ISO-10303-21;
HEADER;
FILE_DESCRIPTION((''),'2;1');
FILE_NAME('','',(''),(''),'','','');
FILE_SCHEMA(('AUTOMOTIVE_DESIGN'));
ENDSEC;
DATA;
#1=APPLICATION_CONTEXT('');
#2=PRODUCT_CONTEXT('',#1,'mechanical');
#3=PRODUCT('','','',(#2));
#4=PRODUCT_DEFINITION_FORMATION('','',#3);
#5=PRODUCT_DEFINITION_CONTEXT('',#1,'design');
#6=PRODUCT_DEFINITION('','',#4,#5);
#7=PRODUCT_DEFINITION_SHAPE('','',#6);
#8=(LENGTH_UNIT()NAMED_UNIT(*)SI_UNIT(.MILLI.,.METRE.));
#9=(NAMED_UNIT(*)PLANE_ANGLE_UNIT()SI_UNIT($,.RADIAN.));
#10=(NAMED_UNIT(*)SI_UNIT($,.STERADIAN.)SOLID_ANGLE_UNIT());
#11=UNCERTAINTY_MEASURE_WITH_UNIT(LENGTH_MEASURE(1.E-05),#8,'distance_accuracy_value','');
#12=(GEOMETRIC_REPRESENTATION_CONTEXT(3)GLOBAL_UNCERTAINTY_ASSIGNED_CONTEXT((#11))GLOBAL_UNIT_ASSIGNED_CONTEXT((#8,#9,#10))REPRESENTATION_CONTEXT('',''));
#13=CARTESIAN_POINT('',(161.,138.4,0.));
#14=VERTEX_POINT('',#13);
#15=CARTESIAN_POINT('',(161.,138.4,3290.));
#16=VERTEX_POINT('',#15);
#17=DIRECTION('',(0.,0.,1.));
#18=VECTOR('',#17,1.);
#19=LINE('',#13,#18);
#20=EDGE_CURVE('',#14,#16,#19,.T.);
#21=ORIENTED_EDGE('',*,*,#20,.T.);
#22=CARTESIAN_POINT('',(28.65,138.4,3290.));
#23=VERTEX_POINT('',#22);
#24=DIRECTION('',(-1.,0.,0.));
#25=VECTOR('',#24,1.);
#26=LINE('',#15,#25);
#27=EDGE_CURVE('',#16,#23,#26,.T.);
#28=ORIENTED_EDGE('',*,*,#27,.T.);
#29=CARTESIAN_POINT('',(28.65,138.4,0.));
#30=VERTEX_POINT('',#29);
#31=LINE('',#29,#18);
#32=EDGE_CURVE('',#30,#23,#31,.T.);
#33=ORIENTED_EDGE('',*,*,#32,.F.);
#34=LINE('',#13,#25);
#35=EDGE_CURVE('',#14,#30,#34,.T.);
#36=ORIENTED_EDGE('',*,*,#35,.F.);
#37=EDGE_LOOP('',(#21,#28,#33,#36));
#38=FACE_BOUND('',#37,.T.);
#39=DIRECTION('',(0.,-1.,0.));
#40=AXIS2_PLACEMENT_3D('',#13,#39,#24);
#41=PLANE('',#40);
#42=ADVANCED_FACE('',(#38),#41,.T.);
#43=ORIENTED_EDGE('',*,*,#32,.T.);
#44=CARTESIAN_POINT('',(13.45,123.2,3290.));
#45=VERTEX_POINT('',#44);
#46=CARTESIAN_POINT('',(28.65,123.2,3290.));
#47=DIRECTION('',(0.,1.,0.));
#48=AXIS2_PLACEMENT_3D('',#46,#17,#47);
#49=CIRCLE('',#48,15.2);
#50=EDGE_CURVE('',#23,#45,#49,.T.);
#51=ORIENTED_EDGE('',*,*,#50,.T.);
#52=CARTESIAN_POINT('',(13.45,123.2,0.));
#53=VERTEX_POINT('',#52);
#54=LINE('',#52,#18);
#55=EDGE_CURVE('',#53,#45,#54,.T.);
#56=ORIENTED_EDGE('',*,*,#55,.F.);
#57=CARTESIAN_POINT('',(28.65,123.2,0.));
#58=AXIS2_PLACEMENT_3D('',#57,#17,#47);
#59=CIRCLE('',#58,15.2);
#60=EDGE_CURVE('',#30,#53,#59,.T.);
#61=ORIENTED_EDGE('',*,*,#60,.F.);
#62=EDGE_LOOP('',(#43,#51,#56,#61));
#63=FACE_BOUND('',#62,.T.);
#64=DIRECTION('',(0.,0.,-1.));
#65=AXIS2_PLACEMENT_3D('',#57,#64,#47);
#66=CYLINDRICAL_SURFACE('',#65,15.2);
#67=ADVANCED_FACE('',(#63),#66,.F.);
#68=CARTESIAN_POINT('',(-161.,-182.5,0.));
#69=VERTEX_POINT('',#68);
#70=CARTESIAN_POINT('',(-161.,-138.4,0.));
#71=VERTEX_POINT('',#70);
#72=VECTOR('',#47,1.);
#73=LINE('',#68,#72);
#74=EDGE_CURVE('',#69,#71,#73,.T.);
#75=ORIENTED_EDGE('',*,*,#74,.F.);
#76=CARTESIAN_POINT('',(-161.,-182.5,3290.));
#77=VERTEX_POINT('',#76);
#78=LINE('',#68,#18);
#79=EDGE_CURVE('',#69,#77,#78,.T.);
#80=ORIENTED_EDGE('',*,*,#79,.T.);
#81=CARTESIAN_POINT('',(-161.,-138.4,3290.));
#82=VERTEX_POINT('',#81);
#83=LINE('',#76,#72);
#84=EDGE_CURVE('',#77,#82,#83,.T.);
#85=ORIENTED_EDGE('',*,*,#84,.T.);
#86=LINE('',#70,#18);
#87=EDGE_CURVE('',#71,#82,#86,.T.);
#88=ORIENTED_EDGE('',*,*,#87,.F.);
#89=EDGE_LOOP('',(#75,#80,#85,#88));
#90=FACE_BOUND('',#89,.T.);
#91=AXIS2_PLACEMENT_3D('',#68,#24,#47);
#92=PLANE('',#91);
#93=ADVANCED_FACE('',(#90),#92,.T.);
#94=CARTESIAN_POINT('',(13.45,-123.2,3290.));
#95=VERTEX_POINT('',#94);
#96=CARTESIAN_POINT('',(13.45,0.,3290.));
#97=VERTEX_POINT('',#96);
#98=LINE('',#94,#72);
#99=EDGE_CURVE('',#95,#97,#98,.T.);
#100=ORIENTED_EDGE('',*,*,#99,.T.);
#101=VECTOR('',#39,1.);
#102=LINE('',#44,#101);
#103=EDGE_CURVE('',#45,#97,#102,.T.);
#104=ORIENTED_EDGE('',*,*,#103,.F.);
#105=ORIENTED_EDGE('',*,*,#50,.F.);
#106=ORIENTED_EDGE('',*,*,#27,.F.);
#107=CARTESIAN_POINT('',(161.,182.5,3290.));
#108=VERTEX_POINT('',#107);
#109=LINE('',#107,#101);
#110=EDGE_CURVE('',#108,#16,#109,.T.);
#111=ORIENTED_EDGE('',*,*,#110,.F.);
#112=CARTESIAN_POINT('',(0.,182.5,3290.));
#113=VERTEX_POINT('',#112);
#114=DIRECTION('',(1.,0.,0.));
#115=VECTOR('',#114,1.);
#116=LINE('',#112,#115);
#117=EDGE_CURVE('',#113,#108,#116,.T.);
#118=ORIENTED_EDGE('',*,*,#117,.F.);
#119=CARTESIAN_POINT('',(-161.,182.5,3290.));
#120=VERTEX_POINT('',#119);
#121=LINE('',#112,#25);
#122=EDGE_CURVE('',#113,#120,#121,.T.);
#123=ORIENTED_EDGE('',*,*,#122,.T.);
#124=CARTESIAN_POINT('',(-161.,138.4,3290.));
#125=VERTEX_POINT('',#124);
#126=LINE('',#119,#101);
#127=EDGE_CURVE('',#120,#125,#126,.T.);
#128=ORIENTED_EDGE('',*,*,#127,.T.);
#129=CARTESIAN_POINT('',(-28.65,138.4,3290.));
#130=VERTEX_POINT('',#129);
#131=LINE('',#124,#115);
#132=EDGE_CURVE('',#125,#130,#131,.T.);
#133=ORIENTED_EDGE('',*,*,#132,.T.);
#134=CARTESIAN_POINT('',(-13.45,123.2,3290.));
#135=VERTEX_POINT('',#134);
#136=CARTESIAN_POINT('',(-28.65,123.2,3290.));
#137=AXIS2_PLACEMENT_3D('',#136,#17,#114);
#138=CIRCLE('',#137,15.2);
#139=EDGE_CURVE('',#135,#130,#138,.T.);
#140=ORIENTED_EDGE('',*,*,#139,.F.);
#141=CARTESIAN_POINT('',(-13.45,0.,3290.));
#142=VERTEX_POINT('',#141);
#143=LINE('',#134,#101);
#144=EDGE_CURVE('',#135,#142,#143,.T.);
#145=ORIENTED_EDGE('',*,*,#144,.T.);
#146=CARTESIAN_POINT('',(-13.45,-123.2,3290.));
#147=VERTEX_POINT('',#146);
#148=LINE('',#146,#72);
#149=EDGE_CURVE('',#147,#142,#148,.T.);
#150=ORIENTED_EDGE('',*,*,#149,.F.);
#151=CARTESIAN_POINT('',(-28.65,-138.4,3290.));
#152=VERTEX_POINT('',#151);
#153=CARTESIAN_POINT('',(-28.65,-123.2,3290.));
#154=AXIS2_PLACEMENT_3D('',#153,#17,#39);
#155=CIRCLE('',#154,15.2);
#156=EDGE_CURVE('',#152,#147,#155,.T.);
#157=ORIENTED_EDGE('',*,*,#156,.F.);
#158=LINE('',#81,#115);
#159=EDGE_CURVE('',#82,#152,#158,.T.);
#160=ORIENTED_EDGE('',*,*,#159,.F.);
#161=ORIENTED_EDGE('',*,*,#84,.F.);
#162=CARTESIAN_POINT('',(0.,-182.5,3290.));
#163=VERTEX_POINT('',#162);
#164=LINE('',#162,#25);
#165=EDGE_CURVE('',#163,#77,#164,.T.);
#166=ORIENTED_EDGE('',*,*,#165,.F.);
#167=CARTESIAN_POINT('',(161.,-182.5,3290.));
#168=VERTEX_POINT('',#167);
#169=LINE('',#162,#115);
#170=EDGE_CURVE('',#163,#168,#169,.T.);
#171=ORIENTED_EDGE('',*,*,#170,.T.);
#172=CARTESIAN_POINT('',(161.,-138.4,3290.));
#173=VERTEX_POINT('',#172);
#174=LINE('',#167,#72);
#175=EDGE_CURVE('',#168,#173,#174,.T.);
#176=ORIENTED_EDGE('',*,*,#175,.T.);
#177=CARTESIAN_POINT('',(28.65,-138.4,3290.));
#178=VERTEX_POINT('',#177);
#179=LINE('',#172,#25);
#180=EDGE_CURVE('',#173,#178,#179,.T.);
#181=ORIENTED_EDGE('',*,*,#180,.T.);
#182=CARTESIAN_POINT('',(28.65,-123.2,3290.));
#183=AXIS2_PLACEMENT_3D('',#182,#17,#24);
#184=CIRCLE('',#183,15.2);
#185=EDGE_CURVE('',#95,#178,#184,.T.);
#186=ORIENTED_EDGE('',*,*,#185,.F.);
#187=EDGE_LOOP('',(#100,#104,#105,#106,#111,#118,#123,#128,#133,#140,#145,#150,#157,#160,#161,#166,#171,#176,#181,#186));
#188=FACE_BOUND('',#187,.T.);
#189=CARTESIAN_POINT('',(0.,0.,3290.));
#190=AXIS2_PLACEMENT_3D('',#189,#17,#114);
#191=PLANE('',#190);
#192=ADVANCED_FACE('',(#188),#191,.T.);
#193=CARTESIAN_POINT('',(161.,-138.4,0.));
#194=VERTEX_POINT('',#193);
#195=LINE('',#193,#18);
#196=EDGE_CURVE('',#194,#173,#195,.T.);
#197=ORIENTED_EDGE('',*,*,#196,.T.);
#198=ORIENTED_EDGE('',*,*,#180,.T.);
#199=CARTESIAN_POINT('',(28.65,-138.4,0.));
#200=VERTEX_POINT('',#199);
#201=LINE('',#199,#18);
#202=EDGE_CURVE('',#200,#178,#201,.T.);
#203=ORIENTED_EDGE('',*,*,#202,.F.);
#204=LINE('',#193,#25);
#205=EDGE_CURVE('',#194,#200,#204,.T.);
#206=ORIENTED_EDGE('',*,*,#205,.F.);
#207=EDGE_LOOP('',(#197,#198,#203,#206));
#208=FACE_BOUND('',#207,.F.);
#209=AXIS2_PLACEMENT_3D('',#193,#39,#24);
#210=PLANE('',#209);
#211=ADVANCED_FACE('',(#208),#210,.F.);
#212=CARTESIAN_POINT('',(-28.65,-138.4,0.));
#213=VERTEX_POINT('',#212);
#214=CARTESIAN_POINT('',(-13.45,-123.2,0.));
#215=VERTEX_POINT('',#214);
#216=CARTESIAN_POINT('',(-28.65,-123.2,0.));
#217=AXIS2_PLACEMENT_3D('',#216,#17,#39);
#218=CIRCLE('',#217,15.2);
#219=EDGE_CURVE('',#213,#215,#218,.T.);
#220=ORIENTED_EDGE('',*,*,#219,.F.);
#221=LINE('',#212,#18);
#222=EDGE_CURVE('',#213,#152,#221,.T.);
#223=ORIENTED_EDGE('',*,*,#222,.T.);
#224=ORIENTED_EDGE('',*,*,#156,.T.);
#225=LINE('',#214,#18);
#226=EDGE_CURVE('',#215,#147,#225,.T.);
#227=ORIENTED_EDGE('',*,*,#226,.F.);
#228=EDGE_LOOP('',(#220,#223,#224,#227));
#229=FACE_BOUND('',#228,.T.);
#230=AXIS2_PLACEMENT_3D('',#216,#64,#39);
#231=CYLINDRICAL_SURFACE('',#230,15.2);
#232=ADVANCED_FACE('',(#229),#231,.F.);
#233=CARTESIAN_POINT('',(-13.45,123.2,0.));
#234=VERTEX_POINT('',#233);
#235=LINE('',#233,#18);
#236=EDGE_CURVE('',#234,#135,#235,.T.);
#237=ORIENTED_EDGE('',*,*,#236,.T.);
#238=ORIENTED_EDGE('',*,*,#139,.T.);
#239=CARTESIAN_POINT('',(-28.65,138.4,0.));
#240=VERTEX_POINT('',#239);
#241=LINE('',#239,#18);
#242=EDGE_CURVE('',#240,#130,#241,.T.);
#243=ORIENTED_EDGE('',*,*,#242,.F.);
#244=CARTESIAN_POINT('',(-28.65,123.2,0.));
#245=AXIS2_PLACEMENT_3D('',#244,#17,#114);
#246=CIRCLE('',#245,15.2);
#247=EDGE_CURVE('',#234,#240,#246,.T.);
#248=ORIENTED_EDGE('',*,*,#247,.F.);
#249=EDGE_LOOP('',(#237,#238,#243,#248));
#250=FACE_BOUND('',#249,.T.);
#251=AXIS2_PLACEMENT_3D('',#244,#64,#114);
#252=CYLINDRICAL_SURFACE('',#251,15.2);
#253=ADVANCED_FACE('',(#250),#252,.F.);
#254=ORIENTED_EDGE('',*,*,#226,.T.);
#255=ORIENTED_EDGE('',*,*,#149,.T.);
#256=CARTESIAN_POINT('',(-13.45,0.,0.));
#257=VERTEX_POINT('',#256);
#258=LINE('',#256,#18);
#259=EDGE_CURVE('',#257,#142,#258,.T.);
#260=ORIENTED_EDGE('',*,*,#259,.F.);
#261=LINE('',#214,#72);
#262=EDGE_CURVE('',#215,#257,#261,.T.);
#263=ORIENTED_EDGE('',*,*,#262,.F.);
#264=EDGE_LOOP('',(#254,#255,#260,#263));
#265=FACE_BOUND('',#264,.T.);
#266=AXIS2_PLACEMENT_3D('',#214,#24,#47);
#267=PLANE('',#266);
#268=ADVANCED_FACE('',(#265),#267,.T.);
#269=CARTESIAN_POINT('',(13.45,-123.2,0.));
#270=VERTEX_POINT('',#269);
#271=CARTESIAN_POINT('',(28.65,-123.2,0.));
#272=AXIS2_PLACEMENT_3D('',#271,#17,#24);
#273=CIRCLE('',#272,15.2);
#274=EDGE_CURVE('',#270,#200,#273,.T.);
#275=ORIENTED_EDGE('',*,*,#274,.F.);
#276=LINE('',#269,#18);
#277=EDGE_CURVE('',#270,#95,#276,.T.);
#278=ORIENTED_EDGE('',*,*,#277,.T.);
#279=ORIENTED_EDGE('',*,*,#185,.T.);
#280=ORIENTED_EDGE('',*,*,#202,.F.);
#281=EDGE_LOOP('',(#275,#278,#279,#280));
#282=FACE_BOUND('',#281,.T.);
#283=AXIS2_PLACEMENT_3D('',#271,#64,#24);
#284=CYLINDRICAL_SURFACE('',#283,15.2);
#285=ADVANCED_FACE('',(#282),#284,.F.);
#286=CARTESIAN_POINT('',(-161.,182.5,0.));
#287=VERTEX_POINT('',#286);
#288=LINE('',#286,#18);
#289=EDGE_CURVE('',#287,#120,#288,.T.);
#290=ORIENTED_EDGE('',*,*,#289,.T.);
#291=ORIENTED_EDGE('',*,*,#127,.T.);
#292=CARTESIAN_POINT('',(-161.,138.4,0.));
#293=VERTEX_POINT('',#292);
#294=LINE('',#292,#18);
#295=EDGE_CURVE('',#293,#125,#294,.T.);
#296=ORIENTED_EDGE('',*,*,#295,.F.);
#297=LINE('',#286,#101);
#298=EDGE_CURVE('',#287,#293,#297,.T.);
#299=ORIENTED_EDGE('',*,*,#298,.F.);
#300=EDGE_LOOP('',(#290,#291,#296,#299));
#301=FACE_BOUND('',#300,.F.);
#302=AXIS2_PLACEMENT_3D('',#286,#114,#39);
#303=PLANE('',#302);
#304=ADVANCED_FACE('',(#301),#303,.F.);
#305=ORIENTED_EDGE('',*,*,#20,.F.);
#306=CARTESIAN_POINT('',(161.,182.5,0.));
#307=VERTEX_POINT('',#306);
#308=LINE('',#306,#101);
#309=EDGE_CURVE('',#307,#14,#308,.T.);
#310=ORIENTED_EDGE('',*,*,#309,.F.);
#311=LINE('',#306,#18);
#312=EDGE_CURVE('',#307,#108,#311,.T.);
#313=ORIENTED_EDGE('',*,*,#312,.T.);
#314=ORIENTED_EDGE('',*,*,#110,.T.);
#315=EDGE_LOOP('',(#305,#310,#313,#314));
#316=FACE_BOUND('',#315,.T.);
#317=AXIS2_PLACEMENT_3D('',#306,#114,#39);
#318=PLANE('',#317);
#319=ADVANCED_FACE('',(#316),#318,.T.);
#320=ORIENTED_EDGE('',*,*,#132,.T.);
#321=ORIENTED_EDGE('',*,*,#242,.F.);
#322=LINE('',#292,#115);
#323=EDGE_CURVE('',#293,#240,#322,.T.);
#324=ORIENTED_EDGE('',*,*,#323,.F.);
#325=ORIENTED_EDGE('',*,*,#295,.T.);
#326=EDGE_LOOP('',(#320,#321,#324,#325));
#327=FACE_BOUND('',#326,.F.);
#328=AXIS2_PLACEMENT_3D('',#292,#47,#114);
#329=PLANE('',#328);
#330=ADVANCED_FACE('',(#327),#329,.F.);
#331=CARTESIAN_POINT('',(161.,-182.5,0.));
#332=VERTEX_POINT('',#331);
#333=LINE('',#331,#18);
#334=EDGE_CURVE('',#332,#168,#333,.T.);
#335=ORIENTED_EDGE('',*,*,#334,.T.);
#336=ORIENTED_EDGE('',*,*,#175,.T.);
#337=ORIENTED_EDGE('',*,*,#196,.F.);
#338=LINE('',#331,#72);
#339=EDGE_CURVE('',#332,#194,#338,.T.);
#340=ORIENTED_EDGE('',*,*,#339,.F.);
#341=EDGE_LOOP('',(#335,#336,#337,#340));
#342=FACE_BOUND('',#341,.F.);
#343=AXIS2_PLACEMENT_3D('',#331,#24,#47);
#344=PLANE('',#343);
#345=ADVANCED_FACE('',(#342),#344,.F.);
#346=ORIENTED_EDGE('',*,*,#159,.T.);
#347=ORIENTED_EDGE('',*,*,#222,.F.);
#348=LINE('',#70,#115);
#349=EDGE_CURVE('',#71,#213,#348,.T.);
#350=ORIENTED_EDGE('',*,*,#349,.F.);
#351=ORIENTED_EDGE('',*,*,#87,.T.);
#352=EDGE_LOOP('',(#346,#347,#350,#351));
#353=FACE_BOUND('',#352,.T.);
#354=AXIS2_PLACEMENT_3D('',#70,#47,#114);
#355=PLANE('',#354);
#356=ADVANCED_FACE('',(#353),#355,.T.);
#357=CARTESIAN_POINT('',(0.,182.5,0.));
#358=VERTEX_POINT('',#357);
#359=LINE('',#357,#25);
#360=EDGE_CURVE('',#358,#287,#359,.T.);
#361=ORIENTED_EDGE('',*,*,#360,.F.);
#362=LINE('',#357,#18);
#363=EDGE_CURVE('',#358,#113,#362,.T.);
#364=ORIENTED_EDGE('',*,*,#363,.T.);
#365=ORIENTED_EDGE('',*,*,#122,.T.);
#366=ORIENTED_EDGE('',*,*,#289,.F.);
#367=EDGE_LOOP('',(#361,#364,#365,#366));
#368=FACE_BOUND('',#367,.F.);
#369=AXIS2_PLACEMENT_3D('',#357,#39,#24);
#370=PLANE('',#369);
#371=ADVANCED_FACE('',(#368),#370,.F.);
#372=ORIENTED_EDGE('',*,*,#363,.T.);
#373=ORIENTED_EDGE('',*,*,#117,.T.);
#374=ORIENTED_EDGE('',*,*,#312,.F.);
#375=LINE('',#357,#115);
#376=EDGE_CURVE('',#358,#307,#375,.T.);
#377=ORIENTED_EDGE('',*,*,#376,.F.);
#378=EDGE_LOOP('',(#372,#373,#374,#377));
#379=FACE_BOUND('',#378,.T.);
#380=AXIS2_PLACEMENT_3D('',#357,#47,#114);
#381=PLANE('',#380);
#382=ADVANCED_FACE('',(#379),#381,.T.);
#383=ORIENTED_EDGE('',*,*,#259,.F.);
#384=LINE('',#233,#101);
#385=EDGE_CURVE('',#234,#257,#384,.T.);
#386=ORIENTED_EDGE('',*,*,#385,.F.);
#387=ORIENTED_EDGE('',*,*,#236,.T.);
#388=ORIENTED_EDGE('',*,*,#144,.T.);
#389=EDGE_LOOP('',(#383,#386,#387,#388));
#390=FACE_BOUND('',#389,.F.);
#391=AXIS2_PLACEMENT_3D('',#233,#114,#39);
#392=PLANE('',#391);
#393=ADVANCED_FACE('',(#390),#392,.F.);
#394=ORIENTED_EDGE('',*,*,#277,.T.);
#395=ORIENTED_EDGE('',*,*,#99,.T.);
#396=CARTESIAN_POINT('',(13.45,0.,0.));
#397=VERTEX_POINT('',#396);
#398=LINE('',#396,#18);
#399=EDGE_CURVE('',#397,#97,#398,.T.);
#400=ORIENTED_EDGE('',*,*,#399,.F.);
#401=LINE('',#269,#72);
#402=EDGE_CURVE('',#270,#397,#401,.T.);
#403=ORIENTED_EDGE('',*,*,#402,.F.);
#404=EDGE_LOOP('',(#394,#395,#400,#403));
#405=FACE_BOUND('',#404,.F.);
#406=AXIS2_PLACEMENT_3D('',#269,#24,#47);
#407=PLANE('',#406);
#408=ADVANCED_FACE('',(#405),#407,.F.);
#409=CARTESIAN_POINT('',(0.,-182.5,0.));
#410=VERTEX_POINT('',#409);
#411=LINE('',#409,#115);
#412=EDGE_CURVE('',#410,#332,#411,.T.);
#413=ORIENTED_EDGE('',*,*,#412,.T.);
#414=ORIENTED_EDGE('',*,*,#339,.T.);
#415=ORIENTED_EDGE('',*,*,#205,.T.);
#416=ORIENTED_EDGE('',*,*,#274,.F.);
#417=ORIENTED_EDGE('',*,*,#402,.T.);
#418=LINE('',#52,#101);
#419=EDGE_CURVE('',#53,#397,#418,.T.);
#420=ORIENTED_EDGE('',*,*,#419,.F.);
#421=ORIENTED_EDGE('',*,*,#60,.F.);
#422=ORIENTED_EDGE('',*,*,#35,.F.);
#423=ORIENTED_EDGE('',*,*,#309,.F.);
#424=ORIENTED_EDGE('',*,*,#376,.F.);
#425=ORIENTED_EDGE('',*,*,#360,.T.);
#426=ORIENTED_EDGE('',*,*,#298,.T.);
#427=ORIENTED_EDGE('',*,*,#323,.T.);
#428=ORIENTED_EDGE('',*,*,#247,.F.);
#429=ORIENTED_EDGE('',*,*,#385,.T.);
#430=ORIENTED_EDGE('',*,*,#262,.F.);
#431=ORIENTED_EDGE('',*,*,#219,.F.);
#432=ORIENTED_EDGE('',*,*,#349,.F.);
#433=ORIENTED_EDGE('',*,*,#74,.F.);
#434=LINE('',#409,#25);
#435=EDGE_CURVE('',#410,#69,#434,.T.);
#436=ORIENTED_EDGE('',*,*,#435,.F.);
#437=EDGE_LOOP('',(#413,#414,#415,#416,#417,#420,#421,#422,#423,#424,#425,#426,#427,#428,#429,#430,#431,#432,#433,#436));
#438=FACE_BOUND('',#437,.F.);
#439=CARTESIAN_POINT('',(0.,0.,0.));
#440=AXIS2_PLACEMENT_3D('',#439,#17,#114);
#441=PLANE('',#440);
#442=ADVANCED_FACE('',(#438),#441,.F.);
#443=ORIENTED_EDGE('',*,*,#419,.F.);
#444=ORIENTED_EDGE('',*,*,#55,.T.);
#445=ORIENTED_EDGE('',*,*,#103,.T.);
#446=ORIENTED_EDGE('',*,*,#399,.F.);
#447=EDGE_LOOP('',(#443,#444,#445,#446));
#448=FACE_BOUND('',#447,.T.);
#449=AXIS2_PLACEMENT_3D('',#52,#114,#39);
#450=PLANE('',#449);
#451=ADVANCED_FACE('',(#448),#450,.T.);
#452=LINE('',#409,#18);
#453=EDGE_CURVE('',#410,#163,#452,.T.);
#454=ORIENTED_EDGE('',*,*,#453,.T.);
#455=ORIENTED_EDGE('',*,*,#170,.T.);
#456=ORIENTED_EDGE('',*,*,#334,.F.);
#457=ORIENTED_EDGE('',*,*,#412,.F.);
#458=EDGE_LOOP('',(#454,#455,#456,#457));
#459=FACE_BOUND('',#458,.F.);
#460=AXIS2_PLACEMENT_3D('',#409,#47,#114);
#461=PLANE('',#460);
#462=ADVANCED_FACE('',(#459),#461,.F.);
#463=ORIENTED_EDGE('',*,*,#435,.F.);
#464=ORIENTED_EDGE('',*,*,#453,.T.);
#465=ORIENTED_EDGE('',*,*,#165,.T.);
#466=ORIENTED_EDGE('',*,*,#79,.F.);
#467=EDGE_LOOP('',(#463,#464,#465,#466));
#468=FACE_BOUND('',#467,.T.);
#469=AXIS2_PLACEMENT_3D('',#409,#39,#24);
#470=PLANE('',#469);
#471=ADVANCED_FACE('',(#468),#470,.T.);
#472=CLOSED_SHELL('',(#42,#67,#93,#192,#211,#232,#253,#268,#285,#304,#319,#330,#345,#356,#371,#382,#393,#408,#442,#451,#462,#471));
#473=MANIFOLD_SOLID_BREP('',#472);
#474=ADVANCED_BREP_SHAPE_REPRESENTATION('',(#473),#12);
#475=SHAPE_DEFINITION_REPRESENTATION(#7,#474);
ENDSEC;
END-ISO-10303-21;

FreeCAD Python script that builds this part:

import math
import FreeCAD as App
import Part
import Sketcher
Q = App.Units.Quantity

doc = App.newDocument("Part")
body = doc.addObject("PartDesign::Body", "Body")

sketch1 = body.newObject("Sketcher::SketchObject", "Sketch")
sketch1.AttachmentSupport = (doc.getObject("XY_Plane"), [""])
sketch1.MapMode = "FlatFace"
sketch1.addGeometry(Part.LineSegment(App.Vector(-161, -138.4, 0), App.Vector(-161, -182.5, 0)), False)
sketch1.addGeometry(Part.LineSegment(App.Vector(-161, -182.5, 0), App.Vector(161, -182.5, 0)), False)
sketch1.addGeometry(Part.LineSegment(App.Vector(161, -182.5, 0), App.Vector(161, -138.4, 0)), False)
sketch1.addGeometry(Part.LineSegment(App.Vector(161, -138.4, 0), App.Vector(28.65, -138.4, 0)), False)
sketch1.addGeometry(Part.ArcOfCircle(Part.Circle(App.Vector(28.65, -123.2, 0), App.Vector(0, 0, 1), 15.2), math.radians(180), math.radians(270)), False)
sketch1.addGeometry(Part.LineSegment(App.Vector(13.45, -123.2, 0), App.Vector(13.45, 123.2, 0)), False)
sketch1.addGeometry(Part.ArcOfCircle(Part.Circle(App.Vector(28.65, 123.2, 0), App.Vector(0, 0, 1), 15.2), math.radians(90), math.radians(180)), False)
sketch1.addGeometry(Part.LineSegment(App.Vector(28.65, 138.4, 0), App.Vector(161, 138.4, 0)), False)
sketch1.addGeometry(Part.LineSegment(App.Vector(161, 138.4, 0), App.Vector(161, 182.5, 0)), False)
sketch1.addGeometry(Part.LineSegment(App.Vector(161, 182.5, 0), App.Vector(-161, 182.5, 0)), False)
sketch1.addGeometry(Part.LineSegment(App.Vector(-161, 182.5, 0), App.Vector(-161, 138.4, 0)), False)
sketch1.addGeometry(Part.LineSegment(App.Vector(-161, 138.4, 0), App.Vector(-28.65, 138.4, 0)), False)
sketch1.addGeometry(Part.ArcOfCircle(Part.Circle(App.Vector(-28.65, 123.2, 0), App.Vector(0, 0, 1), 15.2), math.radians(0), math.radians(90)), False)
sketch1.addGeometry(Part.LineSegment(App.Vector(-13.45, 123.2, 0), App.Vector(-13.45, -123.2, 0)), False)
sketch1.addGeometry(Part.ArcOfCircle(Part.Circle(App.Vector(-28.65, -123.2, 0), App.Vector(0, 0, 1), 15.2), math.radians(-90), math.radians(0)), False)
sketch1.addGeometry(Part.LineSegment(App.Vector(-28.65, -138.4, 0), App.Vector(-161, -138.4, 0)), False)
sketch1.addConstraint(Sketcher.Constraint("Coincident", 0, 2, 1, 1))
sketch1.addConstraint(Sketcher.Constraint("Coincident", 1, 2, 2, 1))
sketch1.addConstraint(Sketcher.Constraint("Coincident", 2, 2, 3, 1))
sketch1.addConstraint(Sketcher.Constraint("Tangent", 3, 2, 4, 2))
sketch1.addConstraint(Sketcher.Constraint("Tangent", 4, 1, 5, 1))
sketch1.addConstraint(Sketcher.Constraint("Tangent", 5, 2, 6, 2))
sketch1.addConstraint(Sketcher.Constraint("Tangent", 6, 1, 7, 1))
sketch1.addConstraint(Sketcher.Constraint("Coincident", 7, 2, 8, 1))
sketch1.addConstraint(Sketcher.Constraint("Coincident", 8, 2, 9, 1))
sketch1.addConstraint(Sketcher.Constraint("Coincident", 9, 2, 10, 1))
sketch1.addConstraint(Sketcher.Constraint("Coincident", 10, 2, 11, 1))
sketch1.addConstraint(Sketcher.Constraint("Tangent", 11, 2, 12, 2))
sketch1.addConstraint(Sketcher.Constraint("Tangent", 12, 1, 13, 1))
sketch1.addConstraint(Sketcher.Constraint("Tangent", 13, 2, 14, 2))
sketch1.addConstraint(Sketcher.Constraint("Tangent", 14, 1, 15, 1))
sketch1.addConstraint(Sketcher.Constraint("Coincident", 15, 2, 0, 1))
sketch1.addConstraint(Sketcher.Constraint("Vertical", 0))
sketch1.addConstraint(Sketcher.Constraint("Horizontal", 1))
sketch1.addConstraint(Sketcher.Constraint("Vertical", 2))
sketch1.addConstraint(Sketcher.Constraint("Horizontal", 3))
sketch1.addConstraint(Sketcher.Constraint("Vertical", 5))
sketch1.addConstraint(Sketcher.Constraint("Horizontal", 7))
sketch1.addConstraint(Sketcher.Constraint("Vertical", 8))
sketch1.addConstraint(Sketcher.Constraint("Horizontal", 9))
sketch1.addConstraint(Sketcher.Constraint("Vertical", 10))
sketch1.addConstraint(Sketcher.Constraint("Horizontal", 11))
sketch1.addConstraint(Sketcher.Constraint("Vertical", 13))
sketch1.addConstraint(Sketcher.Constraint("Horizontal", 15))
sketch1.addConstraint(Sketcher.Constraint("Equal", 4, 6))
sketch1.addConstraint(Sketcher.Constraint("Equal", 6, 12))
sketch1.addConstraint(Sketcher.Constraint("Equal", 12, 14))
sketch1.addConstraint(Sketcher.Constraint("Symmetric", 4, 3, 12, 3, -1, 1))
sketch1.addConstraint(Sketcher.Constraint("Symmetric", 0, 2, 8, 2, -1, 1))
sketch1.addConstraint(Sketcher.Constraint("Symmetric", 7, 2, 10, 2, -2))
sketch1.addConstraint(Sketcher.Constraint("Symmetric", 2, 2, 15, 2, -2))
sketch1.addConstraint(Sketcher.Constraint("Radius", 4, Q("15.2 mm")))
sketch1.addConstraint(Sketcher.Constraint("DistanceY", 0, 2, 0, 1, Q("44.1 mm")))
sketch1.addConstraint(Sketcher.Constraint("DistanceX", 0, 2, -1, 1, Q("161 mm")))
sketch1.addConstraint(Sketcher.Constraint("DistanceY", 0, 2, -1, 1, Q("182.5 mm")))
sketch1.addConstraint(Sketcher.Constraint("DistanceX", -1, 1, 4, 1, Q("13.45 mm")))
pad1 = body.newObject("PartDesign::Pad", "Pad")
pad1.Profile = sketch1
pad1.Length = 3290

doc.recompute()
